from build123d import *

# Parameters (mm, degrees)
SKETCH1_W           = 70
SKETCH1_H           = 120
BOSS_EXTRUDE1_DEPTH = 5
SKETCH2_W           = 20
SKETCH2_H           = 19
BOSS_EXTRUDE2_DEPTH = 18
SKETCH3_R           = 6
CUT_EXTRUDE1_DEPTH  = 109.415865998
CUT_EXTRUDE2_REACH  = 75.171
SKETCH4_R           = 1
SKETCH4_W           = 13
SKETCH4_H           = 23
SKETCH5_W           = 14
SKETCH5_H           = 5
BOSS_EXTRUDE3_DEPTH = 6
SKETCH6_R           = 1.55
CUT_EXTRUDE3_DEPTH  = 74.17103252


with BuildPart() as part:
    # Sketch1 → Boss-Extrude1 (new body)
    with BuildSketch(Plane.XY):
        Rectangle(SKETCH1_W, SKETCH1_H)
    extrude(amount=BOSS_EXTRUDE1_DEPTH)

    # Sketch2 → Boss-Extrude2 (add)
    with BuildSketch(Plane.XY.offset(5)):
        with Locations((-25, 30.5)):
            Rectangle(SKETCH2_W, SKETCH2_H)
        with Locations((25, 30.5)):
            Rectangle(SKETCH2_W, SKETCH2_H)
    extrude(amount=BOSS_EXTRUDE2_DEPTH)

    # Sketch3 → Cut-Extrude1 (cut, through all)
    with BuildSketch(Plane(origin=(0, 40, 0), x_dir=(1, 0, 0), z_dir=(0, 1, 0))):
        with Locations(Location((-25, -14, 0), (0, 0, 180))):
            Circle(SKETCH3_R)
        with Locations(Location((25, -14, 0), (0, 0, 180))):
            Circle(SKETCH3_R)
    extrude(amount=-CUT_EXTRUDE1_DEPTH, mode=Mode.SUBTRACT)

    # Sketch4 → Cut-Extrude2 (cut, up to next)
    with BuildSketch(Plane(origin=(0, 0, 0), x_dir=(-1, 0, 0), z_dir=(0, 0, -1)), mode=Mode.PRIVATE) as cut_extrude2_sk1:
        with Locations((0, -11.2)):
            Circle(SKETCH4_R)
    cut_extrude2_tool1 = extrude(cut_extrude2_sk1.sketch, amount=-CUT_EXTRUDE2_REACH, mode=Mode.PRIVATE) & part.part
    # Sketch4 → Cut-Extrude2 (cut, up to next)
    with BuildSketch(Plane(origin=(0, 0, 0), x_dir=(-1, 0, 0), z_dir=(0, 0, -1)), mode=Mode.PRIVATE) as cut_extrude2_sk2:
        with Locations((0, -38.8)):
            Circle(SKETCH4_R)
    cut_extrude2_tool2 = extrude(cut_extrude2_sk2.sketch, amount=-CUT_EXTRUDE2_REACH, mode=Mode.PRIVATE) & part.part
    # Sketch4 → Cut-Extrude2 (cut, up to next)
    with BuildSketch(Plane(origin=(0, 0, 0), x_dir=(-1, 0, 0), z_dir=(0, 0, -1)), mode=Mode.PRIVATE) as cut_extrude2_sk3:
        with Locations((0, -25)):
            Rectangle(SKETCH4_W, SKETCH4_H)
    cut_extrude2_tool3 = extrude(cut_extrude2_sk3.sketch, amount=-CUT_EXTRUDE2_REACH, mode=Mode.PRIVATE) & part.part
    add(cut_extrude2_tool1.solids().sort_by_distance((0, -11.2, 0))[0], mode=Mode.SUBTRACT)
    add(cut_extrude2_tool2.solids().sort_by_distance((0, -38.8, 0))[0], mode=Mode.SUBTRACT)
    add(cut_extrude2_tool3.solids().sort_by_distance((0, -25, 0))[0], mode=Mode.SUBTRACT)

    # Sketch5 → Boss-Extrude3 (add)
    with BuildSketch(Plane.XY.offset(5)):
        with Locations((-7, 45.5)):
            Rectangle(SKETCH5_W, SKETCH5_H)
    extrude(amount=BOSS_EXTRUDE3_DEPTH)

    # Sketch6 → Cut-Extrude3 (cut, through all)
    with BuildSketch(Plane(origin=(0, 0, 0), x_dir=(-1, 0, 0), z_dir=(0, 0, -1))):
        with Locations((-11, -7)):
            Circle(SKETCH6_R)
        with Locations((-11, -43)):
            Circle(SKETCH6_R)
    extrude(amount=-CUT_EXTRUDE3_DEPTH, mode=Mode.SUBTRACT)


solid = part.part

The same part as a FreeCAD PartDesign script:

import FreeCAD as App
import Part
import Sketcher

V = App.Vector

doc = App.newDocument("Part")
params = doc.addObject("Spreadsheet::Sheet", "Params")
for row, (alias, value) in enumerate([
    ("sketch1_width", "70 mm"),
    ("sketch1_height", "120 mm"),
    ("pad1_length", "5 mm"),
    ("sketch2_width", "20 mm"),
    ("sketch2_height", "19 mm"),
    ("pad2_length", "18 mm"),
    ("sketch3_diameter", "12 mm"),
    ("sketch4_diameter", "2 mm"),
    ("sketch5_diameter", "2 mm"),
    ("sketch6_width", "13 mm"),
    ("sketch6_height", "23 mm"),
    ("sketch7_width", "14 mm"),
    ("sketch7_height", "5 mm"),
    ("pad3_length", "6 mm"),
    ("sketch8_diameter", "3.1 mm"),
], start=1):
    params.set(f"A{row}", alias)
    params.set(f"B{row}", "=" + value)
    params.setAlias(f"B{row}", alias)

body = doc.addObject("PartDesign::Body", "Body")

# Sketch on XY plane
sketch1 = body.newObject("Sketcher::SketchObject", "Sketch")
sketch1.AttachmentSupport = (doc.getObject("XY_Plane"), [""])
sketch1.MapMode = "FlatFace"
sketch1.addGeometry([
    Part.LineSegment(V(-35, 60, 0), V(-35, -60, 0)),
    Part.LineSegment(V(-35, -60, 0), V(35, -60, 0)),
    Part.LineSegment(V(35, -60, 0), V(35, 60, 0)),
    Part.LineSegment(V(35, 60, 0), V(-35, 60, 0)),
], False)
sketch1.addConstraint([
    Sketcher.Constraint("Coincident", 0, 2, 1, 1),
    Sketcher.Constraint("Coincident", 1, 2, 2, 1),
    Sketcher.Constraint("Coincident", 2, 2, 3, 1),
    Sketcher.Constraint("Coincident", 3, 2, 0, 1),
    Sketcher.Constraint("Vertical", 0),
    Sketcher.Constraint("Horizontal", 1),
    Sketcher.Constraint("Vertical", 2),
    Sketcher.Constraint("Horizontal", 3),
    Sketcher.Constraint("Symmetric", 0, 2, 2, 2, -1, 1),
    Sketcher.Constraint("DistanceX", 1, 1, 1, 2, 70.0),
    Sketcher.Constraint("DistanceY", 0, 2, 0, 1, 120.0),
])
sketch1.setExpression("Constraints[9]", "Params.sketch1_width")
sketch1.setExpression("Constraints[10]", "Params.sketch1_height")
pad1 = body.newObject("PartDesign::Pad", "Pad")
pad1.Profile = sketch1
pad1.setExpression("Length", "Params.pad1_length")

# Sketch on XY plane
sketch2 = body.newObject("Sketcher::SketchObject", "Sketch001")
sketch2.AttachmentSupport = (doc.getObject("XY_Plane"), [""])
sketch2.MapMode = "FlatFace"
sketch2.AttachmentOffset = App.Placement(V(0, 0, 5), App.Rotation())
sketch2.addGeometry([
    Part.LineSegment(V(-35, 40, 0), V(-35, 21, 0)),  # 0
    Part.LineSegment(V(-35, 21, 0), V(-15, 21, 0)),  # 1
    Part.LineSegment(V(-15, 21, 0), V(-15, 40, 0)),  # 2
    Part.LineSegment(V(-15, 40, 0), V(-35, 40, 0)),  # 3
    Part.LineSegment(V(15, 40, 0), V(15, 21, 0)),  # 4
    Part.LineSegment(V(15, 21, 0), V(35, 21, 0)),  # 5
    Part.LineSegment(V(35, 21, 0), V(35, 40, 0)),  # 6
    Part.LineSegment(V(35, 40, 0), V(15, 40, 0)),  # 7
], False)
sketch2.addConstraint([
    Sketcher.Constraint("Coincident", 0, 2, 1, 1),
    Sketcher.Constraint("Coincident", 1, 2, 2, 1),
    Sketcher.Constraint("Coincident", 2, 2, 3, 1),
    Sketcher.Constraint("Coincident", 3, 2, 0, 1),
    Sketcher.Constraint("Coincident", 4, 2, 5, 1),
    Sketcher.Constraint("Coincident", 5, 2, 6, 1),
    Sketcher.Constraint("Coincident", 6, 2, 7, 1),
    Sketcher.Constraint("Coincident", 7, 2, 4, 1),
    Sketcher.Constraint("Vertical", 0),
    Sketcher.Constraint("Horizontal", 1),
    Sketcher.Constraint("Vertical", 2),
    Sketcher.Constraint("Horizontal", 3),
    Sketcher.Constraint("Vertical", 4),
    Sketcher.Constraint("Horizontal", 5),
    Sketcher.Constraint("Vertical", 6),
    Sketcher.Constraint("Horizontal", 7),
    Sketcher.Constraint("Symmetric", 1, 2, 4, 2, -2),
    Sketcher.Constraint("Symmetric", 3, 2, 6, 2, -2),
    Sketcher.Constraint("DistanceX", 1, 1, 1, 2, 20.0),
    Sketcher.Constraint("DistanceY", 0, 2, 0, 1, 19.0),
    Sketcher.Constraint("DistanceX", 0, 2, -1, 1, 35.0),
    Sketcher.Constraint("DistanceY", -1, 1, 0, 2, 21.0),
])
sketch2.setExpression("Constraints[18]", "Params.sketch2_width")
sketch2.setExpression("Constraints[19]", "Params.sketch2_height")
pad2 = body.newObject("PartDesign::Pad", "Pad001")
pad2.Profile = sketch2
pad2.setExpression("Length", "Params.pad2_length")

# Sketch on XZ plane
sketch3 = body.newObject("Sketcher::SketchObject", "Sketch002")
sketch3.AttachmentSupport = (doc.getObject("XZ_Plane"), [""])
sketch3.MapMode = "FlatFace"
sketch3.AttachmentOffset = App.Placement(V(0, 0, -40), App.Rotation())
sketch3.addGeometry([
    Part.Circle(V(-25, 14, 0), V(0, 0, 1), 6),
    Part.Circle(V(25, 14, 0), V(0, 0, 1), 6),
], False)
sketch3.addConstraint([
    Sketcher.Constraint("Equal", 0, 1),
    Sketcher.Constraint("Symmetric", 0, 3, 1, 3, -2),
    Sketcher.Constraint("Diameter", 0, 12.0),
    Sketcher.Constraint("DistanceX", 0, 3, -1, 1, 25.0),
    Sketcher.Constraint("DistanceY", -1, 1, 0, 3, 14.0),
])
sketch3.setExpression("Constraints[2]", "Params.sketch3_diameter")
pocket1 = body.newObject("PartDesign::Pocket", "Pocket")
pocket1.Profile = sketch3
pocket1.Type = "ThroughAll"
pocket1.Reversed = True

# Sketch on XY plane
sketch4 = body.newObject("Sketcher::SketchObject", "Sketch003")
sketch4.AttachmentSupport = (doc.getObject("XY_Plane"), [""])
sketch4.MapMode = "FlatFace"
sketch4.addGeometry(Part.Circle(V(0, -11.2, 0), V(0, 0, 1), 1), False)
sketch4.addConstraint([
    Sketcher.Constraint("PointOnObject", 0, 3, -2),
    Sketcher.Constraint("Diameter", 0, 2.0),
    Sketcher.Constraint("DistanceY", 0, 3, -1, 1, 11.2),
])
sketch4.setExpression("Constraints[1]", "Params.sketch4_diameter")
pocket2 = body.newObject("PartDesign::Pocket", "Pocket001")
pocket2.Profile = sketch4
pocket2.Type = "UpToFirst"
pocket2.Reversed = True

# Sketch on XY plane
sketch5 = body.newObject("Sketcher::SketchObject", "Sketch004")
sketch5.AttachmentSupport = (doc.getObject("XY_Plane"), [""])
sketch5.MapMode = "FlatFace"
sketch5.addGeometry(Part.Circle(V(0, -38.8, 0), V(0, 0, 1), 1), False)
sketch5.addConstraint([
    Sketcher.Constraint("PointOnObject", 0, 3, -2),
    Sketcher.Constraint("Diameter", 0, 2.0),
    Sketcher.Constraint("DistanceY", 0, 3, -1, 1, 38.8),
])
sketch5.setExpression("Constraints[1]", "Params.sketch5_diameter")
pocket3 = body.newObject("PartDesign::Pocket", "Pocket002")
pocket3.Profile = sketch5
pocket3.Type = "UpToFirst"
pocket3.Reversed = True

# Sketch on XY plane
sketch6 = body.newObject("Sketcher::SketchObject", "Sketch005")
sketch6.AttachmentSupport = (doc.getObject("XY_Plane"), [""])
sketch6.MapMode = "FlatFace"
sketch6.addGeometry([
    Part.LineSegment(V(6, -14, 0), V(6, -36, 0)),
    Part.LineSegment(V(6, -36, 0), V(-6, -36, 0)),
    Part.LineSegment(V(-6, -36, 0), V(-6, -14, 0)),
    Part.LineSegment(V(-6, -14, 0), V(6, -14, 0)),
], False)
sketch6.addConstraint([
    Sketcher.Constraint("Coincident", 0, 2, 1, 1),
    Sketcher.Constraint("Coincident", 1, 2, 2, 1),
    Sketcher.Constraint("Coincident", 2, 2, 3, 1),
    Sketcher.Constraint("Coincident", 3, 2, 0, 1),
    Sketcher.Constraint("Vertical", 0),
    Sketcher.Constraint("Horizontal", 1),
    Sketcher.Constraint("Vertical", 2),
    Sketcher.Constraint("Horizontal", 3),
    Sketcher.Constraint("DistanceX", 1, 2, 1, 1, 13.0),
    Sketcher.Constraint("DistanceY", 0, 2, 0, 1, 23.0),
    Sketcher.Constraint("DistanceX", -1, 1, 0, 2, 6.5),
    Sketcher.Constraint("DistanceY", 0, 2, -1, 1, 36.5),
])
sketch6.setExpression("Constraints[8]", "Params.sketch6_width")
sketch6.setExpression("Constraints[9]", "Params.sketch6_height")
pocket4 = body.newObject("PartDesign::Pocket", "Pocket003")
pocket4.Profile = sketch6
pocket4.Type = "UpToFirst"
pocket4.Reversed = True

# Sketch on XY plane
sketch7 = body.newObject("Sketcher::SketchObject", "Sketch006")
sketch7.AttachmentSupport = (doc.getObject("XY_Plane"), [""])
sketch7.MapMode = "FlatFace"
sketch7.AttachmentOffset = App.Placement(V(0, 0, 5), App.Rotation())
sketch7.addGeometry([
    Part.LineSegment(V(-14, 48, 0), V(-14, 43, 0)),
    Part.LineSegment(V(-14, 43, 0), V(0, 43, 0)),
    Part.LineSegment(V(0, 43, 0), V(0, 48, 0)),
    Part.LineSegment(V(0, 48, 0), V(-14, 48, 0)),
], False)
sketch7.addConstraint([
    Sketcher.Constraint("Coincident", 0, 2, 1, 1),
    Sketcher.Constraint("Coincident", 1, 2, 2, 1),
    Sketcher.Constraint("Coincident", 2, 2, 3, 1),
    Sketcher.Constraint("Coincident", 3, 2, 0, 1),
    Sketcher.Constraint("Vertical", 0),
    Sketcher.Constraint("Horizontal", 1),
    Sketcher.Constraint("Vertical", 2),
    Sketcher.Constraint("Horizontal", 3),
    Sketcher.Constraint("PointOnObject", 1, 2, -2),
    Sketcher.Constraint("DistanceX", 1, 1, 1, 2, 14.0),
    Sketcher.Constraint("DistanceY", 0, 2, 0, 1, 5.0),
    Sketcher.Constraint("DistanceY", -1, 1, 0, 2, 43.0),
])
sketch7.setExpression("Constraints[9]", "Params.sketch7_width")
sketch7.setExpression("Constraints[10]", "Params.sketch7_height")
pad3 = body.newObject("PartDesign::Pad", "Pad002")
pad3.Profile = sketch7
pad3.setExpression("Length", "Params.pad3_length")

# Sketch on XY plane
sketch8 = body.newObject("Sketcher::SketchObject", "Sketch007")
sketch8.AttachmentSupport = (doc.getObject("XY_Plane"), [""])
sketch8.MapMode = "FlatFace"
sketch8.addGeometry([
    Part.Circle(V(11, -7, 0), V(0, 0, 1), 1.6),
    Part.Circle(V(11, -43, 0), V(0, 0, 1), 1.6),
], False)
sketch8.addConstraint([
    Sketcher.Constraint("Equal", 0, 1),
    Sketcher.Constraint("Vertical", 0, 3, 1, 3),
    Sketcher.Constraint("Diameter", 0, 3.1),
    Sketcher.Constraint("DistanceX", -1, 1, 0, 3, 11.0),
    Sketcher.Constraint("DistanceY", 0, 3, -1, 1, 7.0),
    Sketcher.Constraint("DistanceY", 1, 3, -1, 1, 43.0),
])
sketch8.setExpression("Constraints[2]", "Params.sketch8_diameter")
pocket5 = body.newObject("PartDesign::Pocket", "Pocket004")
pocket5.Profile = sketch8
pocket5.Type = "ThroughAll"
pocket5.Reversed = True

doc.recompute()
